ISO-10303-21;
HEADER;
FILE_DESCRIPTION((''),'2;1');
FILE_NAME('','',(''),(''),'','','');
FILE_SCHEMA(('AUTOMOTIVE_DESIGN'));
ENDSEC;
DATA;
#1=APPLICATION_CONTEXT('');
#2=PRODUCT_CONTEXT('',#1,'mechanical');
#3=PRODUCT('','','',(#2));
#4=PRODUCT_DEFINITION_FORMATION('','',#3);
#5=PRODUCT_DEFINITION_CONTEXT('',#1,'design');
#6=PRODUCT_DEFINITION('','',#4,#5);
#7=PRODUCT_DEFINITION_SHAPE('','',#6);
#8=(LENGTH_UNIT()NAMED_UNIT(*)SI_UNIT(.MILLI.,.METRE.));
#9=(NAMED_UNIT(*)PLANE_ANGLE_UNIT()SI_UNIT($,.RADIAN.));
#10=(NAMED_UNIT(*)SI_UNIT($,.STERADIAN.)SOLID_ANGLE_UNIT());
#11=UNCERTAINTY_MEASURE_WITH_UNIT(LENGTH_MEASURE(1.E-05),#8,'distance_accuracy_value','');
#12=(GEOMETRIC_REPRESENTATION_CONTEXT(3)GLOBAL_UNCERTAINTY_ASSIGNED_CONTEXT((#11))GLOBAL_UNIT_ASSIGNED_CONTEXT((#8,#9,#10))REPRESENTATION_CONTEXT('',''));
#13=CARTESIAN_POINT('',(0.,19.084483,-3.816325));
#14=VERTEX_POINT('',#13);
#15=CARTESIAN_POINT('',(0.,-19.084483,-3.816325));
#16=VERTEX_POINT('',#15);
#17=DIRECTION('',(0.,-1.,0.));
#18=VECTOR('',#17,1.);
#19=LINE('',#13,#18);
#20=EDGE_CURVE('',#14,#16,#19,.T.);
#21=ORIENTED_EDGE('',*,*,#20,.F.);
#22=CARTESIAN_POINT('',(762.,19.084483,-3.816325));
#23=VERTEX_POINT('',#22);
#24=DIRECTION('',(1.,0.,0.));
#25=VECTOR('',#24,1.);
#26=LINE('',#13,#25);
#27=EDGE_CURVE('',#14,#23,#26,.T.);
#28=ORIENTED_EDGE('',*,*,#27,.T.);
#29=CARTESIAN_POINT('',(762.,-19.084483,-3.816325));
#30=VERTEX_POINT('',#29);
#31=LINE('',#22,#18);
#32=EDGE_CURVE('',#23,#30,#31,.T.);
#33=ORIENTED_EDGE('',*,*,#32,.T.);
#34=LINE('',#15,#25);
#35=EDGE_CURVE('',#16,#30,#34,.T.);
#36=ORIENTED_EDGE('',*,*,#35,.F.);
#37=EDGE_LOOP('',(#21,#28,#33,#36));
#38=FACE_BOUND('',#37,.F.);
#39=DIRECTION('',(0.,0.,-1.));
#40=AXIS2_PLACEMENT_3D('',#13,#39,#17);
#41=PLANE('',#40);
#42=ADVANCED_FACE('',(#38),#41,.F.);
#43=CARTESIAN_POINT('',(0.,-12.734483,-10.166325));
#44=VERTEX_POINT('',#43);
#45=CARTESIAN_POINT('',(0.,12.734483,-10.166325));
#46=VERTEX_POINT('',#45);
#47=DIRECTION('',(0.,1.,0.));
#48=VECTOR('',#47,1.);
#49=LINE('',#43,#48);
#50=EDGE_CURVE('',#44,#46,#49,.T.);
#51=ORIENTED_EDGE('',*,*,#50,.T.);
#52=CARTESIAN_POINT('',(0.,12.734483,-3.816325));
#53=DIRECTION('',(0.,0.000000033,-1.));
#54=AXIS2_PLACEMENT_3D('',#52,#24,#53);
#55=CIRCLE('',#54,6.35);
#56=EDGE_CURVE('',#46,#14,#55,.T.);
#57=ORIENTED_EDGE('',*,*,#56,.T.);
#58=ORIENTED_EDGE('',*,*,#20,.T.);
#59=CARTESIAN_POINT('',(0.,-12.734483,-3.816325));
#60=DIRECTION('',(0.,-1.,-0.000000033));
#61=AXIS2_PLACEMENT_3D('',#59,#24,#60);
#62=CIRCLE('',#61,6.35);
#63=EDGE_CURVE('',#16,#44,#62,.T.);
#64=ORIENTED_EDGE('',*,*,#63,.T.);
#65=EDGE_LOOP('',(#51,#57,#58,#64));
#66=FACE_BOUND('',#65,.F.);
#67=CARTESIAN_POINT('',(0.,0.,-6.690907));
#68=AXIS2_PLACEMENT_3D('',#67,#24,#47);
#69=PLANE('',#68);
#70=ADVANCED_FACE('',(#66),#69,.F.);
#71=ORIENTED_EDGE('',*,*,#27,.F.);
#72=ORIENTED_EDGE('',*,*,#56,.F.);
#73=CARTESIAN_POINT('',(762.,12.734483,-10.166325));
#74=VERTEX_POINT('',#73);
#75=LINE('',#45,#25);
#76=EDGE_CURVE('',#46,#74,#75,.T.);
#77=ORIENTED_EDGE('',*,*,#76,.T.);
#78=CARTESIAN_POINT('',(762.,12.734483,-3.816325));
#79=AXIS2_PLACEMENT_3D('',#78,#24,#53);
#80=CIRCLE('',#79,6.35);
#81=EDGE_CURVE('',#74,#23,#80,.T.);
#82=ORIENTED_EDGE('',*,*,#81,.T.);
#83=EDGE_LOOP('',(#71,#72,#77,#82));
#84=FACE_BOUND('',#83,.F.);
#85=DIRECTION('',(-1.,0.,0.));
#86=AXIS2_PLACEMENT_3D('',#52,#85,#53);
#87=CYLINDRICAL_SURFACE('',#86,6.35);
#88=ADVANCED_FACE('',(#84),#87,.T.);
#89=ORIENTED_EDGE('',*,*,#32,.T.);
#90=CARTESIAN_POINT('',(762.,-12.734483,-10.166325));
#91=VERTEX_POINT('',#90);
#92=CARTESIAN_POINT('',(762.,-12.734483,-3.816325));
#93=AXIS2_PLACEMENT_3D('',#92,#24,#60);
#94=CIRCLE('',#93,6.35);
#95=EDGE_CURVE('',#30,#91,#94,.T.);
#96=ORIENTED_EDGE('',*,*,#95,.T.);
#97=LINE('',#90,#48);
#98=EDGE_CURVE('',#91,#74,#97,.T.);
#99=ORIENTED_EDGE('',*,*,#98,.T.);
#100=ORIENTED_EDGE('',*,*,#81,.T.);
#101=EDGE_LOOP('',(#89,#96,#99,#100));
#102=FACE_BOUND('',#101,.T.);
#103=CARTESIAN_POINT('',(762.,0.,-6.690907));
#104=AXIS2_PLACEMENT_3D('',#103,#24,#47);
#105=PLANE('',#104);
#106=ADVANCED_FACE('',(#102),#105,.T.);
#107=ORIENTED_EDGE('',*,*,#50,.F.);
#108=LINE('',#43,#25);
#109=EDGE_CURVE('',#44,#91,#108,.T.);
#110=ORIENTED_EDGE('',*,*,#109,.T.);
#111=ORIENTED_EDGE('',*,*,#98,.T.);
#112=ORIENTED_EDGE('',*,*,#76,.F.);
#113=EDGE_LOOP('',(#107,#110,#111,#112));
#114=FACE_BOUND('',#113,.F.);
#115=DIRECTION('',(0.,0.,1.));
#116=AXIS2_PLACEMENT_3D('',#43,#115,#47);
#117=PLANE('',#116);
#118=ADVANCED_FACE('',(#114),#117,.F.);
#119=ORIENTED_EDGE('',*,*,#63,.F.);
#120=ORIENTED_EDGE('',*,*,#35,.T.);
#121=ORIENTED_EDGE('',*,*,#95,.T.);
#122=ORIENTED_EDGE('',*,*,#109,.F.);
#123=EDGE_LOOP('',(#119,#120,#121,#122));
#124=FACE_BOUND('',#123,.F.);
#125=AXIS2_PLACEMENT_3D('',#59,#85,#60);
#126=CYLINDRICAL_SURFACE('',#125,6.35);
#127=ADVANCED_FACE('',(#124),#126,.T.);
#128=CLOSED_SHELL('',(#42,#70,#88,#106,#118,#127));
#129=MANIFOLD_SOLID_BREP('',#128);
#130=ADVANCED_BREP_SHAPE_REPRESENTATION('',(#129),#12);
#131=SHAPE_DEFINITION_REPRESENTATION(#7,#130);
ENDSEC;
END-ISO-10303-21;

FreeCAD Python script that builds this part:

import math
import FreeCAD as App
import Part
import Sketcher
Q = App.Units.Quantity

doc = App.newDocument("Part")
params = doc.addObject("Spreadsheet::Sheet", "Params")
for row, (alias, value) in enumerate([
    ("sketch1_radius", "0.25 in"),
    ("pad1_length", "30 in"),
], start=1):
    params.set(f"A{row}", alias)
    params.set(f"B{row}", "=" + value)
    params.setAlias(f"B{row}", alias)

body = doc.addObject("PartDesign::Body", "Body")

# Sketch on YZ plane
sketch1 = doc.addObject("Sketcher::SketchObject", "Sketch")
body.addObject(sketch1)
sketch1.AttachmentSupport = (doc.YZ_Plane, [""])
sketch1.MapMode = "FlatFace"
sketch1.addGeometry([
    Part.ArcOfCircle(Part.Circle(App.Vector(-13, -4, 0), App.Vector(0, 0, 1), 6), math.radians(-180), math.radians(-90)),
    Part.LineSegment(App.Vector(-13, -10, 0), App.Vector(13, -10, 0)),
    Part.ArcOfCircle(Part.Circle(App.Vector(13, -4, 0), App.Vector(0, 0, 1), 6), math.radians(-90), math.radians(0)),
    Part.LineSegment(App.Vector(19, -4, 0), App.Vector(-19, -4, 0)),
], False)
sketch1.addConstraint([
    Sketcher.Constraint("Tangent", 0, 2, 1, 1),
    Sketcher.Constraint("Tangent", 1, 2, 2, 1),
    Sketcher.Constraint("Coincident", 2, 2, 3, 1),
    Sketcher.Constraint("Coincident", 3, 2, 0, 1),
    Sketcher.Constraint("Horizontal", 1),
    Sketcher.Constraint("Horizontal", 3),
    Sketcher.Constraint("Equal", 0, 2),
    Sketcher.Constraint("Horizontal", 0, 3, 2, 2),
    Sketcher.Constraint("Radius", 0, Q("0.25 in")),
    Sketcher.Constraint("DistanceX", 1, 1, 1, 2, Q("25.468966 mm")),
    Sketcher.Constraint("DistanceX", 0, 3, -1, 1, Q("12.734483 mm")),
    Sketcher.Constraint("DistanceY", 0, 3, -1, 1, Q("3.816325 mm")),
])
sketch1.setExpression("Constraints[8]", "Params.sketch1_radius")
pad1 = doc.addObject("PartDesign::Pad", "Pad")
body.addObject(pad1)
pad1.Profile = sketch1
pad1.setExpression("Length", "Params.pad1_length")

doc.recompute()
